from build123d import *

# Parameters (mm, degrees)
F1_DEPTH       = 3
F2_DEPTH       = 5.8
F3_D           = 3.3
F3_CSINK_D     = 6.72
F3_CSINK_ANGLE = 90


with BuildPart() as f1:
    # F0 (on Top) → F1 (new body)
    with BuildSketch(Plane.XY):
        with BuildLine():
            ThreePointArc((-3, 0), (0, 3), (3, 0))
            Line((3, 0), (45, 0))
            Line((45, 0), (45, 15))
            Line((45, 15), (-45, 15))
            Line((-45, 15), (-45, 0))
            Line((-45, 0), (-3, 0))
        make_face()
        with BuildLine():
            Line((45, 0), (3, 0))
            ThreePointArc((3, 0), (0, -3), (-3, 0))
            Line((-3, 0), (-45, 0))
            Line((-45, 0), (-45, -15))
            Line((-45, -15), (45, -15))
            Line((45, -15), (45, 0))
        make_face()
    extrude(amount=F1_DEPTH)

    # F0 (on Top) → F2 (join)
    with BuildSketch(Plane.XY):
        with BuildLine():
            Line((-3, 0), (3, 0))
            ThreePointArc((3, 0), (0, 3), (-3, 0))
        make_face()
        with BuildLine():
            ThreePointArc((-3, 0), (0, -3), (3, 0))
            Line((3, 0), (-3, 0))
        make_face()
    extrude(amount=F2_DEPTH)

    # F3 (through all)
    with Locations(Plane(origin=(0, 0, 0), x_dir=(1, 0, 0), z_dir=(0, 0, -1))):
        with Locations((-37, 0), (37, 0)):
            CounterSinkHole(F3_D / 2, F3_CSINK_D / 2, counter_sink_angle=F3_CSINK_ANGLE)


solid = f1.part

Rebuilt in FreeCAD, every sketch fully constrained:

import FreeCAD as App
import Part
import Sketcher
Q = App.Units.Quantity


def add_polygon(sketch, points):
    """Adds a closed chain of lines whose ends are joined by coincident constraints."""
    first, n = sketch.GeometryCount, len(points)
    for a, b in zip(points, points[1:] + points[:1]):
        sketch.addGeometry(Part.LineSegment(App.Vector(*a, 0), App.Vector(*b, 0)), False)
    for i in range(n):
        sketch.addConstraint(Sketcher.Constraint("Coincident", first + i, 2, first + (i + 1) % n, 1))

doc = App.newDocument("Part")
params = doc.addObject("Spreadsheet::Sheet", "Params")
for row, (alias, value) in enumerate([
    ("sketch1_diameter", "6 mm"),
    ("sketch1_width", "90 mm"),
    ("sketch1_height", "30 mm"),
    ("pad1_length", "3 mm"),
    ("sketch2_diameter", "6 mm"),
    ("pad2_length", "5.8 mm"),
    ("sketch3_diameter", "3.3 mm"),
    ("hole_diameter", "3.3 mm"),
    ("hole_csink_diameter", "6.72 mm"),
], start=1):
    params.set(f"A{row}", alias)
    params.set(f"B{row}", "=" + value)
    params.setAlias(f"B{row}", alias)

body = doc.addObject("PartDesign::Body", "Body")

# Sketch on XY plane
sketch1 = body.newObject("Sketcher::SketchObject", "Sketch")
sketch1.AttachmentSupport = (doc.getObject("XY_Plane"), [""])
sketch1.MapMode = "FlatFace"
add_polygon(sketch1, [(45, 15), (-45, 15), (-45, -15), (45, -15)])  # lines 0-3
sketch1.addGeometry(Part.Circle(App.Vector(0, 0, 0), App.Vector(0, 0, 1), 3), False)  # 4
sketch1.addConstraint(Sketcher.Constraint("Horizontal", 0))
sketch1.addConstraint(Sketcher.Constraint("Vertical", 1))
sketch1.addConstraint(Sketcher.Constraint("Horizontal", 2))
sketch1.addConstraint(Sketcher.Constraint("Vertical", 3))
sketch1.addConstraint(Sketcher.Constraint("Coincident", 4, 3, -1, 1))
sketch1.addConstraint(Sketcher.Constraint("Symmetric", 0, 2, 2, 2, -1, 1))
sketch1.addConstraint(Sketcher.Constraint("Diameter", 4, Q("6 mm")))
sketch1.addConstraint(Sketcher.Constraint("DistanceX", 0, 2, 0, 1, Q("90 mm")))
sketch1.addConstraint(Sketcher.Constraint("DistanceY", 1, 2, 1, 1, Q("30 mm")))
sketch1.setExpression("Constraints[10]", "Params.sketch1_diameter")
sketch1.setExpression("Constraints[11]", "Params.sketch1_width")
sketch1.setExpression("Constraints[12]", "Params.sketch1_height")
pad1 = body.newObject("PartDesign::Pad", "Pad")
pad1.Profile = sketch1
pad1.setExpression("Length", "Params.pad1_length")

# Sketch on XY plane
sketch2 = body.newObject("Sketcher::SketchObject", "Sketch001")
sketch2.AttachmentSupport = (doc.getObject("XY_Plane"), [""])
sketch2.MapMode = "FlatFace"
sketch2.addGeometry(Part.Circle(App.Vector(0, 0, 0), App.Vector(0, 0, 1), 3), False)
sketch2.addConstraint(Sketcher.Constraint("Coincident", 0, 3, -1, 1))
sketch2.addConstraint(Sketcher.Constraint("Diameter", 0, Q("6 mm")))
sketch2.setExpression("Constraints[1]", "Params.sketch2_diameter")
pad2 = body.newObject("PartDesign::Pad", "Pad001")
pad2.Profile = sketch2
pad2.setExpression("Length", "Params.pad2_length")

# Sketch on XY plane
sketch3 = body.newObject("Sketcher::SketchObject", "Sketch002")
sketch3.AttachmentSupport = (doc.getObject("XY_Plane"), [""])
sketch3.MapMode = "FlatFace"
sketch3.addGeometry(Part.Circle(App.Vector(-37, 0, 0), App.Vector(0, 0, 1), 1.6), False)
sketch3.addGeometry(Part.Circle(App.Vector(37, 0, 0), App.Vector(0, 0, 1), 1.6), False)
sketch3.addConstraint(Sketcher.Constraint("Equal", 0, 1))
sketch3.addConstraint(Sketcher.Constraint("Symmetric", 0, 3, 1, 3, -1, 1))
sketch3.addConstraint(Sketcher.Constraint("PointOnObject", 0, 3, -1))
sketch3.addConstraint(Sketcher.Constraint("Diameter", 0, Q("3.3 mm")))
sketch3.addConstraint(Sketcher.Constraint("DistanceX", 0, 3, -1, 1, Q("37 mm")))
sketch3.setExpression("Constraints[3]", "Params.sketch3_diameter")
doc.recompute()
hole = body.newObject("PartDesign::Hole", "Hole")
hole.Profile = sketch3
hole.ThreadType = "None"
hole.setExpression("Diameter", "Params.hole_diameter")
hole.DepthType = "ThroughAll"
hole.HoleCutType = "Countersink"
hole.setExpression("HoleCutDiameter", "Params.hole_csink_diameter")
hole.HoleCutCountersinkAngle = 90
hole.Reversed = True

doc.recompute()
